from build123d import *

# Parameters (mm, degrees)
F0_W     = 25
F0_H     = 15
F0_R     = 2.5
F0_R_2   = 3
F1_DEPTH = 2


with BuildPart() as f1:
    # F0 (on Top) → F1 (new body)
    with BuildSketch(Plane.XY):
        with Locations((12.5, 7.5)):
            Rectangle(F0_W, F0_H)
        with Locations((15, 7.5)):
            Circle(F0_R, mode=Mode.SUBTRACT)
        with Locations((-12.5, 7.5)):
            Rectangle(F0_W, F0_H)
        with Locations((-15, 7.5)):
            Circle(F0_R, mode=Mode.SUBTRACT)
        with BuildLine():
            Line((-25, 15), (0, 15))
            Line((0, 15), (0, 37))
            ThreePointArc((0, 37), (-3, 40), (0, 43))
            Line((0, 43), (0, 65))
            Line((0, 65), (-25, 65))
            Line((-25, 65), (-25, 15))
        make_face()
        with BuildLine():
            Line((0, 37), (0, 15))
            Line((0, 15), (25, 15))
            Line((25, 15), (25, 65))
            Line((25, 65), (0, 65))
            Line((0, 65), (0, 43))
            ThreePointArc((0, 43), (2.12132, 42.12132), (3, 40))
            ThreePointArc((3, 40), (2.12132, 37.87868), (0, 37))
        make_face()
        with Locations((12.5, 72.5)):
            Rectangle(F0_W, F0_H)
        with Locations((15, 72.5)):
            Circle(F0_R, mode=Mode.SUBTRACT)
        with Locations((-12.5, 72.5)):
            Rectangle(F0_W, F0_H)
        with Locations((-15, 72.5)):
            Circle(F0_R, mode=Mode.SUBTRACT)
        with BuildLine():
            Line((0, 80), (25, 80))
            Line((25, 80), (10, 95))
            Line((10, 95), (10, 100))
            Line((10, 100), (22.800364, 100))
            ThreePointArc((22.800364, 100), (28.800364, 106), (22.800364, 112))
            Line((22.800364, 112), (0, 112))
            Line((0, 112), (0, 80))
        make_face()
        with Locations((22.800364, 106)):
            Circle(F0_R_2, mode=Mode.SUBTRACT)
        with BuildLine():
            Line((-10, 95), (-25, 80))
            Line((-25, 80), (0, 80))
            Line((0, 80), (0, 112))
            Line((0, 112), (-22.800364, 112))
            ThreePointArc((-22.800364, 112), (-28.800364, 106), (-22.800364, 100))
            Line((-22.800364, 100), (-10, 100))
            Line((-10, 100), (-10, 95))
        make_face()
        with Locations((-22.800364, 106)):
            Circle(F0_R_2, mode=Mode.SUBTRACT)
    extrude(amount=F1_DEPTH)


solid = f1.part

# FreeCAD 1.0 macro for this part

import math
import FreeCAD as App
import Part
import Sketcher
from FreeCAD import Vector
Q = App.Units.Quantity

doc = App.newDocument("Part")
body = doc.addObject("PartDesign::Body", "Body")

# Sketch on XY plane
sketch1 = doc.addObject("Sketcher::SketchObject", "Sketch")
body.addObject(sketch1)
sketch1.AttachmentSupport = (doc.XY_Plane, [""])
sketch1.MapMode = "FlatFace"
sketch1.addGeometry(Part.LineSegment(Vector(25, 0, 0), Vector(25, 80, 0)), False)
sketch1.addGeometry(Part.LineSegment(Vector(25, 80, 0), Vector(10, 95, 0)), False)
sketch1.addGeometry(Part.LineSegment(Vector(10, 95, 0), Vector(10, 100, 0)), False)
sketch1.addGeometry(Part.LineSegment(Vector(10, 100, 0), Vector(22.8, 100, 0)), False)
sketch1.addGeometry(Part.ArcOfCircle(Part.Circle(Vector(22.8, 106, 0), Vector(0, 0, 1), 6), math.radians(-90), math.radians(90)), False)
sketch1.addGeometry(Part.LineSegment(Vector(22.8, 112, 0), Vector(-22.8, 112, 0)), False)
sketch1.addGeometry(Part.ArcOfCircle(Part.Circle(Vector(-22.8, 106, 0), Vector(0, 0, 1), 6), math.radians(90), math.radians(270)), False)
sketch1.addGeometry(Part.LineSegment(Vector(-22.8, 100, 0), Vector(-10, 100, 0)), False)
sketch1.addGeometry(Part.LineSegment(Vector(-10, 100, 0), Vector(-10, 95, 0)), False)
sketch1.addGeometry(Part.LineSegment(Vector(-10, 95, 0), Vector(-25, 80, 0)), False)
sketch1.addGeometry(Part.LineSegment(Vector(-25, 80, 0), Vector(-25, 0, 0)), False)
sketch1.addGeometry(Part.LineSegment(Vector(-25, 0, 0), Vector(25, 0, 0)), False)
sketch1.addGeometry(Part.Circle(Vector(-15, 7.5, 0), Vector(0, 0, 1), 2.5), False)
sketch1.addGeometry(Part.Circle(Vector(15, 7.5, 0), Vector(0, 0, 1), 2.5), False)
sketch1.addGeometry(Part.ArcOfCircle(Part.Circle(Vector(0, 40, 0), Vector(0, 0, 1), 3), math.radians(90), math.radians(270)), False)
sketch1.addGeometry(Part.ArcOfCircle(Part.Circle(Vector(0, 40, 0), Vector(0, 0, 1), 3), math.radians(0), math.radians(90)), False)
sketch1.addGeometry(Part.ArcOfCircle(Part.Circle(Vector(0, 40, 0), Vector(0, 0, 1), 3), math.radians(-90), math.radians(0)), False)
sketch1.addGeometry(Part.Circle(Vector(-15, 72.5, 0), Vector(0, 0, 1), 2.5), False)
sketch1.addGeometry(Part.Circle(Vector(-22.8, 106, 0), Vector(0, 0, 1), 3), False)
sketch1.addGeometry(Part.Circle(Vector(15, 72.5, 0), Vector(0, 0, 1), 2.5), False)
sketch1.addGeometry(Part.Circle(Vector(22.8, 106, 0), Vector(0, 0, 1), 3), False)
sketch1.addConstraint(Sketcher.Constraint("Coincident", 0, 2, 1, 1))
sketch1.addConstraint(Sketcher.Constraint("Coincident", 1, 2, 2, 1))
sketch1.addConstraint(Sketcher.Constraint("Coincident", 2, 2, 3, 1))
sketch1.addConstraint(Sketcher.Constraint("Tangent", 3, 2, 4, 1))
sketch1.addConstraint(Sketcher.Constraint("Tangent", 4, 2, 5, 1))
sketch1.addConstraint(Sketcher.Constraint("Tangent", 5, 2, 6, 1))
sketch1.addConstraint(Sketcher.Constraint("Tangent", 6, 2, 7, 1))
sketch1.addConstraint(Sketcher.Constraint("Coincident", 7, 2, 8, 1))
sketch1.addConstraint(Sketcher.Constraint("Coincident", 8, 2, 9, 1))
sketch1.addConstraint(Sketcher.Constraint("Coincident", 9, 2, 10, 1))
sketch1.addConstraint(Sketcher.Constraint("Coincident", 10, 2, 11, 1))
sketch1.addConstraint(Sketcher.Constraint("Coincident", 11, 2, 0, 1))
sketch1.addConstraint(Sketcher.Constraint("Tangent", 14, 1, 15, 2))
sketch1.addConstraint(Sketcher.Constraint("Tangent", 15, 1, 16, 2))
sketch1.addConstraint(Sketcher.Constraint("Tangent", 16, 1, 14, 2))
sketch1.addConstraint(Sketcher.Constraint("Vertical", 0))
sketch1.addConstraint(Sketcher.Constraint("Vertical", 2))
sketch1.addConstraint(Sketcher.Constraint("Horizontal", 3))
sketch1.addConstraint(Sketcher.Constraint("Horizontal", 5))
sketch1.addConstraint(Sketcher.Constraint("Horizontal", 7))
sketch1.addConstraint(Sketcher.Constraint("Vertical", 8))
sketch1.addConstraint(Sketcher.Constraint("Vertical", 10))
sketch1.addConstraint(Sketcher.Constraint("Horizontal", 11))
sketch1.addConstraint(Sketcher.Constraint("Coincident", 18, 3, 6, 3))
sketch1.addConstraint(Sketcher.Constraint("Coincident", 20, 3, 4, 3))
sketch1.addConstraint(Sketcher.Constraint("Equal", 4, 6))
sketch1.addConstraint(Sketcher.Constraint("Equal", 12, 13))
sketch1.addConstraint(Sketcher.Constraint("Equal", 13, 17))
sketch1.addConstraint(Sketcher.Constraint("Equal", 16, 18))
sketch1.addConstraint(Sketcher.Constraint("Equal", 17, 19))
sketch1.addConstraint(Sketcher.Constraint("Equal", 18, 20))
sketch1.addConstraint(Sketcher.Constraint("Symmetric", 10, 2, 11, 2, -1, 1))
sketch1.addConstraint(Sketcher.Constraint("Symmetric", 12, 3, 13, 3, -2))
sketch1.addConstraint(Sketcher.Constraint("Symmetric", 17, 3, 19, 3, -2))
sketch1.addConstraint(Sketcher.Constraint("Symmetric", 1, 2, 8, 2, -2))
sketch1.addConstraint(Sketcher.Constraint("PointOnObject", 14, 3, -2))
sketch1.addConstraint(Sketcher.Constraint("PointOnObject", 14, 1, -2))
sketch1.addConstraint(Sketcher.Constraint("PointOnObject", 16, 1, -2))
sketch1.addConstraint(Sketcher.Constraint("Perpendicular", 1, 9))
sketch1.addConstraint(Sketcher.Constraint("Horizontal", 0, 2, 9, 2))
sketch1.addConstraint(Sketcher.Constraint("Horizontal", 16, 3, 15, 1))
sketch1.addConstraint(Sketcher.Constraint("Vertical", 12, 3, 17, 3))
sketch1.addConstraint(Sketcher.Constraint("Equal", 3, 7))
sketch1.addConstraint(Sketcher.Constraint("Diameter", 12, Q("5 mm")))
sketch1.addConstraint(Sketcher.Constraint("Diameter", 18, Q("6 mm")))
sketch1.addConstraint(Sketcher.Constraint("Radius", 4, Q("6 mm")))
sketch1.addConstraint(Sketcher.Constraint("DistanceX", 11, 1, 11, 2, Q("50 mm")))
sketch1.addConstraint(Sketcher.Constraint("DistanceY", 0, 1, 0, 2, Q("80 mm")))
sketch1.addConstraint(Sketcher.Constraint("DistanceY", 2, 1, 2, 2, Q("5 mm")))
sketch1.addConstraint(Sketcher.Constraint("DistanceY", -1, 1, 4, 3, Q("106 mm")))
sketch1.addConstraint(Sketcher.Constraint("DistanceX", 12, 3, -1, 1, Q("15 mm")))
sketch1.addConstraint(Sketcher.Constraint("DistanceY", -1, 1, 14, 3, Q("40 mm")))
sketch1.addConstraint(Sketcher.Constraint("DistanceY", -1, 1, 12, 3, Q("7.5 mm")))
sketch1.addConstraint(Sketcher.Constraint("DistanceY", -1, 1, 17, 3, Q("72.5 mm")))
sketch1.addConstraint(Sketcher.Constraint("DistanceX", 3, 1, 3, 2, Q("12.800364 mm")))
pad1 = doc.addObject("PartDesign::Pad", "Pad")
body.addObject(pad1)
pad1.Profile = sketch1
pad1.Length = 2

doc.recompute()
